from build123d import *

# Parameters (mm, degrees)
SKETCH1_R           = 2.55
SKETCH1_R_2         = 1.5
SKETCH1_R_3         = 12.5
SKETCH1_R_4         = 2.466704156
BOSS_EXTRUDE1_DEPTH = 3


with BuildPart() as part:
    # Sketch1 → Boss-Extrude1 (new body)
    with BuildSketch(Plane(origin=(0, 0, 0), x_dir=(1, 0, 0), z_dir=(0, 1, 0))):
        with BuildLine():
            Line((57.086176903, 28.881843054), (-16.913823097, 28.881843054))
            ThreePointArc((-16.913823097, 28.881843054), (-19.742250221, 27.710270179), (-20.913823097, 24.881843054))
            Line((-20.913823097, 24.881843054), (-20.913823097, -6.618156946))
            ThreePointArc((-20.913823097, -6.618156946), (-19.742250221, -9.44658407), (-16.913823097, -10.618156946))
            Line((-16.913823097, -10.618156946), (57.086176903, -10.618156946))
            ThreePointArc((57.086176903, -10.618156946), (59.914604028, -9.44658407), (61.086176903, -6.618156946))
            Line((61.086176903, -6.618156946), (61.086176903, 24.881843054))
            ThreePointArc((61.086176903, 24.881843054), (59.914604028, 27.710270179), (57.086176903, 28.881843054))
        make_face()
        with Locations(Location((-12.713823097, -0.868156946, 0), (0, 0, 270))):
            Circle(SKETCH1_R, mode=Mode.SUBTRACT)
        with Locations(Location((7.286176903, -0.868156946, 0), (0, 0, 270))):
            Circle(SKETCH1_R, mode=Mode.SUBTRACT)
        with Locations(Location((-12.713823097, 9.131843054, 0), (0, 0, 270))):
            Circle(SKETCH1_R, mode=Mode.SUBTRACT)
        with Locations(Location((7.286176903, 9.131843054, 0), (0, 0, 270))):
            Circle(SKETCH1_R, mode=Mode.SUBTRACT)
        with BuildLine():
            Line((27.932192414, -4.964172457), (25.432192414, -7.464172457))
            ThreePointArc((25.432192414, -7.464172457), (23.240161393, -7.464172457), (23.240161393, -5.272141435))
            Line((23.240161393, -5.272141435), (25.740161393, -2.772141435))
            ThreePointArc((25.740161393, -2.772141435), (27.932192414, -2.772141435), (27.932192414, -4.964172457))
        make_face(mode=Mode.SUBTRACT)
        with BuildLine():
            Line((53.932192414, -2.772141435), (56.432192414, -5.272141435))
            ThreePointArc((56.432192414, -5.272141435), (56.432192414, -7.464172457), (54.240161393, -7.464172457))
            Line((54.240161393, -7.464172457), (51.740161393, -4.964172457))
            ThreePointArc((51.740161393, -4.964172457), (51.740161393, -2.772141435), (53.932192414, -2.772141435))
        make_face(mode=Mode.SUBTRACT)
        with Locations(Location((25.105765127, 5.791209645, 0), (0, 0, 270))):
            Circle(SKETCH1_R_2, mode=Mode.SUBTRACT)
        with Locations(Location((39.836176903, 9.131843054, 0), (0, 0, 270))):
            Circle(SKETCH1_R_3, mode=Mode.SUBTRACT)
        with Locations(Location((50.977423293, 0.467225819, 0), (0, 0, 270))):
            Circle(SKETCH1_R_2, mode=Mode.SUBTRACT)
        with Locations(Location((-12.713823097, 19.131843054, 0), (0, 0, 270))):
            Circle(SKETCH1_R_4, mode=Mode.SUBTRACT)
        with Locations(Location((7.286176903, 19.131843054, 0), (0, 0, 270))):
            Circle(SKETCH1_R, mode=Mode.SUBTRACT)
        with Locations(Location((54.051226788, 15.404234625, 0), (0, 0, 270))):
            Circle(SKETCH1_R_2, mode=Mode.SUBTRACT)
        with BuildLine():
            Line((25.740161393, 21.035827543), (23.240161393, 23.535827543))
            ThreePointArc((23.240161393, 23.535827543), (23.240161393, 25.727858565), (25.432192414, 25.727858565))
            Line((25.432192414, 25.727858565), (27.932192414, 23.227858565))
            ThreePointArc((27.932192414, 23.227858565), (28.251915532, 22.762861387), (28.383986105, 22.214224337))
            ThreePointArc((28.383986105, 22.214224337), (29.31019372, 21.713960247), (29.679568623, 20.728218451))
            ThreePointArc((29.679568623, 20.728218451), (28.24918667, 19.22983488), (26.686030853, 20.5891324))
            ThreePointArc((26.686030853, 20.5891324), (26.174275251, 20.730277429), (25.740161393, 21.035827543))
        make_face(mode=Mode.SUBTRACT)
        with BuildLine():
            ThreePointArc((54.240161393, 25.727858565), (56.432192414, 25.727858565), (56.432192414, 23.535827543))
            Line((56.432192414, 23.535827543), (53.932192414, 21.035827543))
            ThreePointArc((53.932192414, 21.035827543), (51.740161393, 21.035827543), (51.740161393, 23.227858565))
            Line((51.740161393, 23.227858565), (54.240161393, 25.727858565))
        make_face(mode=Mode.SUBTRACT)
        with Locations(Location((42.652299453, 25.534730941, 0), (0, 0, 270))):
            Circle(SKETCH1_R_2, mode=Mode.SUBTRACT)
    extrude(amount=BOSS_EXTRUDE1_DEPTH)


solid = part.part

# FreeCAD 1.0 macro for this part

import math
import FreeCAD as App
import Part
import Sketcher

V = App.Vector

doc = App.newDocument("Part")
body = doc.addObject("PartDesign::Body", "Body")

# Sketch on XZ plane
sketch1 = body.newObject("Sketcher::SketchObject", "Sketch")
sketch1.AttachmentSupport = (doc.getObject("XZ_Plane"), [""])
sketch1.MapMode = "FlatFace"
sketch1.addGeometry([
    Part.LineSegment(V(57.086177, -28.881843, 0), V(-16.913823, -28.881843, 0)),  # 0
    Part.ArcOfCircle(Part.Circle(V(-16.913823, -24.881843, 0), V(0, 0, 1), 4), math.radians(-180), math.radians(-90)),  # 1
    Part.LineSegment(V(-20.913823, -24.881843, 0), V(-20.913823, 6.618157, 0)),  # 2
    Part.ArcOfCircle(Part.Circle(V(-16.913823, 6.618157, 0), V(0, 0, 1), 4), math.radians(90), math.radians(180)),  # 3
    Part.LineSegment(V(-16.913823, 10.618157, 0), V(57.086177, 10.618157, 0)),  # 4
    Part.ArcOfCircle(Part.Circle(V(57.086177, 6.618157, 0), V(0, 0, 1), 4), math.radians(0), math.radians(90)),  # 5
    Part.LineSegment(V(61.086177, 6.618157, 0), V(61.086177, -24.881843, 0)),  # 6
    Part.ArcOfCircle(Part.Circle(V(57.086177, -24.881843, 0), V(0, 0, 1), 4), math.radians(-90), math.radians(0)),  # 7
    Part.Circle(V(-12.713823, 0.868157, 0), V(0, 0, 1), 2.55),  # 8
    Part.Circle(V(7.286177, 0.868157, 0), V(0, 0, 1), 2.55),  # 9
    Part.Circle(V(-12.713823, -9.131843, 0), V(0, 0, 1), 2.55),  # 10
    Part.Circle(V(7.286177, -9.131843, 0), V(0, 0, 1), 2.55),  # 11
    Part.ArcOfCircle(Part.Circle(V(26.836177, 3.868157, 0), V(0, 0, 1), 1.55), math.radians(-135), math.radians(45)),  # 12
    Part.LineSegment(V(27.932192, 4.964172, 0), V(25.432192, 7.464172, 0)),  # 13
    Part.ArcOfCircle(Part.Circle(V(24.336177, 6.368157, 0), V(0, 0, 1), 1.55), math.radians(45), math.radians(225)),  # 14
    Part.LineSegment(V(23.240161, 5.272141, 0), V(25.740161, 2.772141, 0)),  # 15
    Part.ArcOfCircle(Part.Circle(V(52.836177, 3.868157, 0), V(0, 0, 1), 1.55), math.radians(135), math.radians(315)),  # 16
    Part.LineSegment(V(53.932192, 2.772141, 0), V(56.432192, 5.272141, 0)),  # 17
    Part.ArcOfCircle(Part.Circle(V(55.336177, 6.368157, 0), V(0, 0, 1), 1.55), math.radians(-45), math.radians(135)),  # 18
    Part.LineSegment(V(54.240161, 7.464172, 0), V(51.740161, 4.964172, 0)),  # 19
    Part.Circle(V(50.977423, -0.467226, 0), V(0, 0, 1), 1.5),  # 20
    Part.Circle(V(25.105765, -5.79121, 0), V(0, 0, 1), 1.5),  # 21
    Part.Circle(V(39.836177, -9.131843, 0), V(0, 0, 1), 12.5),  # 22
    Part.Circle(V(-12.713823, -19.131843, 0), V(0, 0, 1), 2.466704),  # 23
    Part.Circle(V(7.286177, -19.131843, 0), V(0, 0, 1), 2.55),  # 24
    Part.Circle(V(54.051227, -15.404235, 0), V(0, 0, 1), 1.5),  # 25
    Part.ArcOfCircle(Part.Circle(V(26.836177, -22.131843, 0), V(0, 0, 1), 1.55), math.radians(95.558868), math.radians(135)),  # 26
    Part.LineSegment(V(25.740161, -21.035828, 0), V(23.240161, -23.535828, 0)),  # 27
    Part.ArcOfCircle(Part.Circle(V(24.336177, -24.631843, 0), V(0, 0, 1), 1.55), math.radians(135), math.radians(315)),  # 28
    Part.LineSegment(V(25.432192, -25.727859, 0), V(27.932192, -23.227859, 0)),  # 29
    Part.ArcOfCircle(Part.Circle(V(26.836177, -22.131843, 0), V(0, 0, 1), 1.55), math.radians(-45), math.radians(-3.046661)),  # 30
    Part.ArcOfCircle(Part.Circle(V(28.179569, -20.728218, 0), V(0, 0, 1), 1.5), math.radians(-82.167454), math.radians(0)),  # 31
    Part.ArcOfCircle(Part.Circle(V(28.179569, -20.728218, 0), V(0, 0, 1), 1.5), math.radians(0), math.radians(174.679662)),  # 32
    Part.Circle(V(42.652299, -25.534731, 0), V(0, 0, 1), 1.5),  # 33
    Part.LineSegment(V(51.740161, -23.227859, 0), V(54.240161, -25.727859, 0)),  # 34
    Part.ArcOfCircle(Part.Circle(V(55.336177, -24.631843, 0), V(0, 0, 1), 1.55), math.radians(-135), math.radians(45)),  # 35
    Part.LineSegment(V(56.432192, -23.535828, 0), V(53.932192, -21.035828, 0)),  # 36
    Part.ArcOfCircle(Part.Circle(V(52.836177, -22.131843, 0), V(0, 0, 1), 1.55), math.radians(45), math.radians(225)),  # 37
], False)
sketch1.addConstraint([
    Sketcher.Constraint("Tangent", 0, 2, 1, 2),
    Sketcher.Constraint("Tangent", 1, 1, 2, 1),
    Sketcher.Constraint("Tangent", 2, 2, 3, 2),
    Sketcher.Constraint("Tangent", 3, 1, 4, 1),
    Sketcher.Constraint("Tangent", 4, 2, 5, 2),
    Sketcher.Constraint("Tangent", 5, 1, 6, 1),
    Sketcher.Constraint("Tangent", 6, 2, 7, 2),
    Sketcher.Constraint("Tangent", 7, 1, 0, 1),
    Sketcher.Constraint("Tangent", 12, 2, 13, 1),
    Sketcher.Constraint("Tangent", 13, 2, 14, 1),
    Sketcher.Constraint("Tangent", 14, 2, 15, 1),
    Sketcher.Constraint("Tangent", 15, 2, 12, 1),
    Sketcher.Constraint("Tangent", 16, 2, 17, 1),
    Sketcher.Constraint("Tangent", 17, 2, 18, 1),
    Sketcher.Constraint("Tangent", 18, 2, 19, 1),
    Sketcher.Constraint("Tangent", 19, 2, 16, 1),
    Sketcher.Constraint("Tangent", 26, 2, 27, 1),
    Sketcher.Constraint("Tangent", 27, 2, 28, 1),
    Sketcher.Constraint("Tangent", 28, 2, 29, 1),
    Sketcher.Constraint("Tangent", 29, 2, 30, 1),
    Sketcher.Constraint("Coincident", 30, 2, 31, 1),
    Sketcher.Constraint("Tangent", 31, 2, 32, 1),
    Sketcher.Constraint("Coincident", 32, 2, 26, 1),
    Sketcher.Constraint("Tangent", 34, 2, 35, 1),
    Sketcher.Constraint("Tangent", 35, 2, 36, 1),
    Sketcher.Constraint("Tangent", 36, 2, 37, 1),
    Sketcher.Constraint("Tangent", 37, 2, 34, 1),
    Sketcher.Constraint("Horizontal", 0),
    Sketcher.Constraint("Vertical", 2),
    Sketcher.Constraint("Horizontal", 4),
    Sketcher.Constraint("Vertical", 6),
    Sketcher.Constraint("Coincident", 30, 3, 26, 3),
    Sketcher.Constraint("Equal", 1, 3),
    Sketcher.Constraint("Equal", 3, 5),
    Sketcher.Constraint("Equal", 5, 7),
    Sketcher.Constraint("Equal", 8, 9),
    Sketcher.Constraint("Equal", 9, 10),
    Sketcher.Constraint("Equal", 10, 11),
    Sketcher.Constraint("Equal", 12, 14),
    Sketcher.Constraint("Equal", 14, 16),
    Sketcher.Constraint("Equal", 16, 18),
    Sketcher.Constraint("Equal", 20, 21),
    Sketcher.Constraint("Equal", 11, 24),
    Sketcher.Constraint("Equal", 21, 25),
    Sketcher.Constraint("Equal", 18, 26),
    Sketcher.Constraint("Equal", 26, 28),
    Sketcher.Constraint("Equal", 28, 30),
    Sketcher.Constraint("Equal", 25, 31),
    Sketcher.Constraint("Equal", 31, 32),
    Sketcher.Constraint("Equal", 32, 33),
    Sketcher.Constraint("Equal", 30, 35),
    Sketcher.Constraint("Equal", 35, 37),
    Sketcher.Constraint("Perpendicular", 15, 17),
    Sketcher.Constraint("Parallel", 19, 27),
    Sketcher.Constraint("Perpendicular", 29, 34),
    Sketcher.Constraint("Horizontal", 8, 3, 9, 3),
    Sketcher.Constraint("Horizontal", 10, 3, 11, 3),
    Sketcher.Constraint("Horizontal", 12, 3, 16, 3),
    Sketcher.Constraint("Horizontal", 14, 3, 18, 3),
    Sketcher.Constraint("Horizontal", 11, 3, 22, 3),
    Sketcher.Constraint("Horizontal", 23, 3, 24, 3),
    Sketcher.Constraint("Horizontal", 28, 3, 35, 3),
    Sketcher.Constraint("Horizontal", 30, 3, 37, 3),
    Sketcher.Constraint("Horizontal", 15, 2, 16, 2),
    Sketcher.Constraint("Horizontal", 32, 3, 31, 2),
    Sketcher.Constraint("Vertical", 8, 3, 10, 3),
    Sketcher.Constraint("Vertical", 9, 3, 11, 3),
    Sketcher.Constraint("Vertical", 10, 3, 23, 3),
    Sketcher.Constraint("Vertical", 11, 3, 24, 3),
    Sketcher.Constraint("Vertical", 12, 3, 26, 3),
    Sketcher.Constraint("Vertical", 14, 3, 28, 3),
    Sketcher.Constraint("Vertical", 18, 3, 35, 3),
    Sketcher.Constraint("Diameter", 20, 3.0),
    Sketcher.Constraint("Diameter", 22, 25.0),
    Sketcher.Constraint("Radius", 1, 4.0),
    Sketcher.Constraint("Diameter", 8, 5.1),
    Sketcher.Constraint("DistanceX", 0, 2, 0, 1, 74.0),
    Sketcher.Constraint("Radius", 12, 1.55),
    Sketcher.Constraint("DistanceY", 2, 1, 2, 2, 31.5),
    Sketcher.Constraint("DistanceX", 8, 3, 9, 3, 20.0),
    Sketcher.Constraint("DistanceY", 10, 3, 8, 3, 10.0),
    Sketcher.Constraint("DistanceY", 9, 3, 12, 3, 3.0),
    Sketcher.Constraint("DistanceX", 12, 3, 16, 3, 26.0),
    Sketcher.Constraint("DistanceX", 14, 3, 18, 3, 31.0),
    Sketcher.Constraint("DistanceX", 12, 3, 22, 3, 13.0),
    Sketcher.Constraint("DistanceY", 23, 3, 10, 3, 10.0),
    Sketcher.Constraint("DistanceY", 26, 3, 22, 3, 13.0),
    Sketcher.Constraint("DistanceX", 3, 3, 8, 3, 4.2),
    Sketcher.Constraint("Diameter", 23, 4.933408),
    Sketcher.Constraint("DistanceY", 8, 3, 3, 3, 5.75),
    Sketcher.Constraint("DistanceX", 9, 3, 12, 3, 19.55),
    Sketcher.Constraint("DistanceX", -1, 1, 33, 3, 42.652299),
    Sketcher.Constraint("DistanceY", 21, 3, -1, 1, 5.79121),
    Sketcher.Constraint("DistanceX", -1, 1, 31, 3, 28.179569),
    Sketcher.Constraint("DistanceY", 31, 3, -1, 1, 20.728218),
    Sketcher.Constraint("DistanceY", 33, 3, -1, 1, 25.534731),
    Sketcher.Constraint("DistanceX", -1, 1, 14, 2, 23.240161),
    Sketcher.Constraint("DistanceY", -1, 1, 14, 2, 5.272141),
    Sketcher.Constraint("DistanceX", 21, 3, 12, 3, 1.730412),
    Sketcher.Constraint("DistanceX", 21, 3, 20, 3, 25.871658),
    Sketcher.Constraint("DistanceX", 25, 3, 7, 3, 3.03495),
    Sketcher.Constraint("DistanceY", 7, 3, 25, 3, 9.477608),
    Sketcher.Constraint("DistanceY", 25, 3, 20, 3, 14.937009),
])
pad1 = body.newObject("PartDesign::Pad", "Pad")
pad1.Profile = sketch1
pad1.Length = 3
pad1.Reversed = True

doc.recompute()
